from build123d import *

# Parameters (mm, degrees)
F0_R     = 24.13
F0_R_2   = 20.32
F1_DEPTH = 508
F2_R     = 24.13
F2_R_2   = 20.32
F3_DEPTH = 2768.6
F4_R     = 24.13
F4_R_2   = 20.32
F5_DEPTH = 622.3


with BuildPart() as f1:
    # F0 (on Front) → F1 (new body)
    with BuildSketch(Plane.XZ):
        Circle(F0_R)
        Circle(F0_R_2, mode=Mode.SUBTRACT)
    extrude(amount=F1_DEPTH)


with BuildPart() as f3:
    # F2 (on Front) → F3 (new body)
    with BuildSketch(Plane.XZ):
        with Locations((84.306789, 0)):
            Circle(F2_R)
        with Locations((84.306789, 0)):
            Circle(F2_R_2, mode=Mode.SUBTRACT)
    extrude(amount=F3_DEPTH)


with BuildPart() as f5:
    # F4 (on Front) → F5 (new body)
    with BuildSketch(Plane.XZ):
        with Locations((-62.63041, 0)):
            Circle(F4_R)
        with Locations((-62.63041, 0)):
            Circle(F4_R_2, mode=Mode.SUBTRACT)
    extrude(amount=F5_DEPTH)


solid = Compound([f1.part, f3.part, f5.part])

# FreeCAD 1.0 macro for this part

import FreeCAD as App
import Part
import Sketcher

V = App.Vector
Q = App.Units.Quantity

doc = App.newDocument("Part")
params = doc.addObject("Spreadsheet::Sheet", "Params")
for row, (alias, value) in enumerate([
    ("sketch1_diameter", "1.9 in"),
    ("sketch1_diameter2", "1.6 in"),
    ("pad1_length", "20 in"),
    ("sketch2_diameter", "1.9 in"),
    ("sketch2_diameter2", "1.6 in"),
    ("pad2_length", "109 in"),
    ("sketch3_diameter", "1.9 in"),
    ("sketch3_diameter2", "1.6 in"),
    ("pad3_length", "24.5 in"),
], start=1):
    params.set(f"A{row}", alias)
    params.set(f"B{row}", "=" + value)
    params.setAlias(f"B{row}", alias)

body = doc.addObject("PartDesign::Body", "Body")

# Sketch on XZ plane
sketch1 = body.newObject("Sketcher::SketchObject", "Sketch")
sketch1.AttachmentSupport = (doc.getObject("XZ_Plane"), [""])
sketch1.MapMode = "FlatFace"
sketch1.addGeometry([
    Part.Circle(V(0, 0, 0), V(0, 0, 1), 24.13),
    Part.Circle(V(0, 0, 0), V(0, 0, 1), 20.32),
], False)
sketch1.addConstraint([
    Sketcher.Constraint("Coincident", 0, 3, -1, 1),
    Sketcher.Constraint("Coincident", 1, 3, -1, 1),
    Sketcher.Constraint("Diameter", 0, Q("1.9 in")),
    Sketcher.Constraint("Diameter", 1, Q("1.6 in")),
])
sketch1.setExpression("Constraints[2]", "Params.sketch1_diameter")
sketch1.setExpression("Constraints[3]", "Params.sketch1_diameter2")
pad1 = body.newObject("PartDesign::Pad", "Pad")
pad1.Profile = sketch1
pad1.setExpression("Length", "Params.pad1_length")
body2 = doc.addObject("PartDesign::Body", "Body001")

# Sketch on XZ plane
sketch2 = body2.newObject("Sketcher::SketchObject", "Sketch001")
sketch2.AttachmentSupport = (doc.getObject("XZ_Plane001"), [""])
sketch2.MapMode = "FlatFace"
sketch2.addGeometry([
    Part.Circle(V(84.306789, 0, 0), V(0, 0, 1), 24.13),
    Part.Circle(V(84.306789, 0, 0), V(0, 0, 1), 20.32),
], False)
sketch2.addConstraint([
    Sketcher.Constraint("Coincident", 1, 3, 0, 3),
    Sketcher.Constraint("PointOnObject", 0, 3, -1),
    Sketcher.Constraint("Diameter", 0, Q("1.9 in")),
    Sketcher.Constraint("Diameter", 1, Q("1.6 in")),
    Sketcher.Constraint("DistanceX", -1, 1, 0, 3, Q("84.306789 mm")),
])
sketch2.setExpression("Constraints[2]", "Params.sketch2_diameter")
sketch2.setExpression("Constraints[3]", "Params.sketch2_diameter2")
pad2 = body2.newObject("PartDesign::Pad", "Pad001")
pad2.Profile = sketch2
pad2.setExpression("Length", "Params.pad2_length")
body3 = doc.addObject("PartDesign::Body", "Body002")

# Sketch on XZ plane
sketch3 = body3.newObject("Sketcher::SketchObject", "Sketch002")
sketch3.AttachmentSupport = (doc.getObject("XZ_Plane002"), [""])
sketch3.MapMode = "FlatFace"
sketch3.addGeometry([
    Part.Circle(V(-62.63041, 0, 0), V(0, 0, 1), 24.13),
    Part.Circle(V(-62.63041, 0, 0), V(0, 0, 1), 20.32),
], False)
sketch3.addConstraint([
    Sketcher.Constraint("Coincident", 1, 3, 0, 3),
    Sketcher.Constraint("PointOnObject", 0, 3, -1),
    Sketcher.Constraint("Diameter", 0, Q("1.9 in")),
    Sketcher.Constraint("Diameter", 1, Q("1.6 in")),
    Sketcher.Constraint("DistanceX", 0, 3, -1, 1, Q("62.63041 mm")),
])
sketch3.setExpression("Constraints[2]", "Params.sketch3_diameter")
sketch3.setExpression("Constraints[3]", "Params.sketch3_diameter2")
pad3 = body3.newObject("PartDesign::Pad", "Pad002")
pad3.Profile = sketch3
pad3.setExpression("Length", "Params.pad3_length")

doc.recompute()
